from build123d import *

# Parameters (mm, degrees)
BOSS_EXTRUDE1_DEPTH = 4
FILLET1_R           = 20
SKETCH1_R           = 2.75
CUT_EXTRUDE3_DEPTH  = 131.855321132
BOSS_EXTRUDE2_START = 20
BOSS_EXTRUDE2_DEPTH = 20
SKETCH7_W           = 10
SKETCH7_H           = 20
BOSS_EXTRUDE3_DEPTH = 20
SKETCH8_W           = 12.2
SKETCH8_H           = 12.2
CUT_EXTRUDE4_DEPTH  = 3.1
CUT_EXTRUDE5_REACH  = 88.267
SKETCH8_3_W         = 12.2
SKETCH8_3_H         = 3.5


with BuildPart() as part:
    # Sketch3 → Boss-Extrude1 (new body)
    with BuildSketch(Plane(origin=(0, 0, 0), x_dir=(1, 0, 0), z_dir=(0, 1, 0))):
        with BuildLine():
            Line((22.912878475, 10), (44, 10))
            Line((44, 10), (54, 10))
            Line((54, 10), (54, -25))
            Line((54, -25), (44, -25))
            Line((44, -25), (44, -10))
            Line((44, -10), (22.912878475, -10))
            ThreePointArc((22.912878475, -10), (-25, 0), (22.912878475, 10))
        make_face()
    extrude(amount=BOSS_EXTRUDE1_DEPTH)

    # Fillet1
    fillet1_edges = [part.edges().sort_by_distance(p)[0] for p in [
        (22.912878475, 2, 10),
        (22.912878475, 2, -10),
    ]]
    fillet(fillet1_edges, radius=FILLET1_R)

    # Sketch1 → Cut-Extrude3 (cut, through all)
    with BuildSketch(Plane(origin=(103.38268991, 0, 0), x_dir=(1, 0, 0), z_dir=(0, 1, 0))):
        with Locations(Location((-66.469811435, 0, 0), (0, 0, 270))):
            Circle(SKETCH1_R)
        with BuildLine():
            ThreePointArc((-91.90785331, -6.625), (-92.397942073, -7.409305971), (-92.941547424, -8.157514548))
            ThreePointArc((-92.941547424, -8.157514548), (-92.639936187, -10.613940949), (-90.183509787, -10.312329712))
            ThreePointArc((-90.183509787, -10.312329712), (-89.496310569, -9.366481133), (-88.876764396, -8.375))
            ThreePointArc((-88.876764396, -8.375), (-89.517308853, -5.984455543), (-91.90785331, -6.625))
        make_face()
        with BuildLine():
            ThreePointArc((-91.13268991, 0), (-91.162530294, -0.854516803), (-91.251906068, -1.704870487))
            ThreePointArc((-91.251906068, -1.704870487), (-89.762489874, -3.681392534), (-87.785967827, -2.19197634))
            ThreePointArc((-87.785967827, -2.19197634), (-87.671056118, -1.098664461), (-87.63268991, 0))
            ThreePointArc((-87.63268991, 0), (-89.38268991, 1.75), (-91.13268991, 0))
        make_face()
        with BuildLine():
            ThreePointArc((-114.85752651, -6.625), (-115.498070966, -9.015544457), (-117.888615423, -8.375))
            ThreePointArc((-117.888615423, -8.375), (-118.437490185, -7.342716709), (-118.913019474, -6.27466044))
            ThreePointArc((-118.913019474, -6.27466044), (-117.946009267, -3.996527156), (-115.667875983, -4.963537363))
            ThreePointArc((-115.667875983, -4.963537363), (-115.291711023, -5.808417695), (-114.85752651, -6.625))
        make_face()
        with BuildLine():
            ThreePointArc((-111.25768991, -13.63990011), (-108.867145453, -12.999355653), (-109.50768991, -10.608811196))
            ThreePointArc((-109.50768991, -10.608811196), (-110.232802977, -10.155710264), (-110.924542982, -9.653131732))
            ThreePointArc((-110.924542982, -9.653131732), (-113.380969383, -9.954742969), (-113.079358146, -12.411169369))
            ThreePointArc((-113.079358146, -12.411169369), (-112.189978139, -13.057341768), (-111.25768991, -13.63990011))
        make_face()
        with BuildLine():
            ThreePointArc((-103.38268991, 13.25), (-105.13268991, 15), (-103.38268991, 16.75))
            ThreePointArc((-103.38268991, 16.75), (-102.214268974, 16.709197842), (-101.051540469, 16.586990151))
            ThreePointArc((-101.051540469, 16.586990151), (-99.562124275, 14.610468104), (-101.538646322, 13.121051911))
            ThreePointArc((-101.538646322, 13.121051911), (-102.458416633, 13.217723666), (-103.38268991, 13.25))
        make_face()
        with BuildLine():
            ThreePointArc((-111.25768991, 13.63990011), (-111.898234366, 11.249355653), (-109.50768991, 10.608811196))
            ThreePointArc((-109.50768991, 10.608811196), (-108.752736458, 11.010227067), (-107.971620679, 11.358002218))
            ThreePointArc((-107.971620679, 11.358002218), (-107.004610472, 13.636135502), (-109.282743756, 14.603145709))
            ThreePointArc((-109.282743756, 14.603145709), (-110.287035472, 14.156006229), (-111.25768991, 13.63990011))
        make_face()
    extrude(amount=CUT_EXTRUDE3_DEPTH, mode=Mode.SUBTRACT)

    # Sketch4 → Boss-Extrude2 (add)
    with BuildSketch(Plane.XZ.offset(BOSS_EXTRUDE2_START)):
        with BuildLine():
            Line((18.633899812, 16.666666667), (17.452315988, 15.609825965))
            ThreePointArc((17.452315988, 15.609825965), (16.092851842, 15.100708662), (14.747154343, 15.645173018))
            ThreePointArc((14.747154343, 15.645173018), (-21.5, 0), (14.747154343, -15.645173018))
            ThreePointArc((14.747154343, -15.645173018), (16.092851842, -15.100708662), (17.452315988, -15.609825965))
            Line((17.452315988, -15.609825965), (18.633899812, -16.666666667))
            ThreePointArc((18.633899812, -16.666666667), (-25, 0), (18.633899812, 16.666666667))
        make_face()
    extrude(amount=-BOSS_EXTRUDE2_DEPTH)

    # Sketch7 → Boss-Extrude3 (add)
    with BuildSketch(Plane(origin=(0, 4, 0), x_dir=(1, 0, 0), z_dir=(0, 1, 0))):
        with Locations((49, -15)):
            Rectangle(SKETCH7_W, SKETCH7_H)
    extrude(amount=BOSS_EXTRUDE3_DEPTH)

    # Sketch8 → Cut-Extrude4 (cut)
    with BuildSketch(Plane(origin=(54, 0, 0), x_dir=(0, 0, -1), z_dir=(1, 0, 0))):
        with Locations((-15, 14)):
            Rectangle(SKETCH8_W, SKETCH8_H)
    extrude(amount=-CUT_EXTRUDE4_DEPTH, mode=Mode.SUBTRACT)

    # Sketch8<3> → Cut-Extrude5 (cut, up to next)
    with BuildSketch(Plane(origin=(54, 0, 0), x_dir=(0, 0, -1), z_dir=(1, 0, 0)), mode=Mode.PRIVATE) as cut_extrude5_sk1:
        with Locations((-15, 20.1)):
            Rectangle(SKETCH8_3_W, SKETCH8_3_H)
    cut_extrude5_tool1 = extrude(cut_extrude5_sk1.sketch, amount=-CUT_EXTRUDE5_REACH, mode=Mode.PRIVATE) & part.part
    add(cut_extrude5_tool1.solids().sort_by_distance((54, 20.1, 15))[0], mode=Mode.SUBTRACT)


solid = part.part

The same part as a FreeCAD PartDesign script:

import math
import FreeCAD as App
import Part
import Sketcher

V = App.Vector
Q = App.Units.Quantity


def edges_at(feature, points):
    """Names of the edges that pass closest to the given points."""
    edges = feature.Shape.Edges
    near = lambda p: min(range(len(edges)), key=lambda i: edges[i].distToShape(Part.Vertex(*p))[0])
    return sorted({f"Edge{near(p) + 1}" for p in points})

doc = App.newDocument("Part")
body = doc.addObject("PartDesign::Body", "Body")

# Sketch on XZ plane
sketch1 = body.newObject("Sketcher::SketchObject", "Sketch")
sketch1.AttachmentSupport = (doc.getObject("XZ_Plane"), [""])
sketch1.MapMode = "FlatFace"
sketch1.addGeometry(Part.LineSegment(V(54, -10, 0), V(22.912878, -10, 0)), False)
sketch1.addGeometry(Part.ArcOfCircle(Part.Circle(V(0, 0, 0), V(0, 0, 1), 25), math.radians(23.578178), math.radians(336.421822)), False)
sketch1.addGeometry(Part.LineSegment(V(22.912878, 10, 0), V(44, 10, 0)), False)
sketch1.addGeometry(Part.LineSegment(V(44, 10, 0), V(44, 25, 0)), False)
sketch1.addGeometry(Part.LineSegment(V(44, 25, 0), V(54, 25, 0)), False)
sketch1.addGeometry(Part.LineSegment(V(54, 25, 0), V(54, -10, 0)), False)
sketch1.addConstraint(Sketcher.Constraint("Coincident", 0, 2, 1, 2))
sketch1.addConstraint(Sketcher.Constraint("Coincident", 1, 1, 2, 1))
sketch1.addConstraint(Sketcher.Constraint("Coincident", 2, 2, 3, 1))
sketch1.addConstraint(Sketcher.Constraint("Coincident", 3, 2, 4, 1))
sketch1.addConstraint(Sketcher.Constraint("Coincident", 4, 2, 5, 1))
sketch1.addConstraint(Sketcher.Constraint("Coincident", 5, 2, 0, 1))
sketch1.addConstraint(Sketcher.Constraint("Horizontal", 0))
sketch1.addConstraint(Sketcher.Constraint("Horizontal", 2))
sketch1.addConstraint(Sketcher.Constraint("Vertical", 3))
sketch1.addConstraint(Sketcher.Constraint("Horizontal", 4))
sketch1.addConstraint(Sketcher.Constraint("Vertical", 5))
sketch1.addConstraint(Sketcher.Constraint("Coincident", 1, 3, -1, 1))
sketch1.addConstraint(Sketcher.Constraint("Vertical", 0, 2, 1, 1))
sketch1.addConstraint(Sketcher.Constraint("Radius", 1, Q("25 mm")))
sketch1.addConstraint(Sketcher.Constraint("DistanceX", 4, 1, 4, 2, Q("10 mm")))
sketch1.addConstraint(Sketcher.Constraint("DistanceY", 3, 1, 3, 2, Q("15 mm")))
sketch1.addConstraint(Sketcher.Constraint("DistanceY", 5, 2, 5, 1, Q("35 mm")))
sketch1.addConstraint(Sketcher.Constraint("DistanceX", -1, 1, 2, 2, Q("44 mm")))
pad1 = body.newObject("PartDesign::Pad", "Pad")
pad1.Profile = sketch1
pad1.Length = 4
pad1.Reversed = True
doc.recompute()

fillet = body.newObject("PartDesign::Fillet", "Fillet")
fillet.Base = (pad1, edges_at(pad1, [(22.913, 2, 10), (22.913, 2, -10)]))
fillet.Radius = 20

# Sketch on XZ plane
sketch2 = body.newObject("Sketcher::SketchObject", "Sketch001")
sketch2.AttachmentSupport = (doc.getObject("XZ_Plane"), [""])
sketch2.MapMode = "FlatFace"
sketch2.addGeometry(Part.Circle(V(36.912878, 0, 0), V(0, 0, 1), 2.75), False)
sketch2.addGeometry(Part.ArcOfCircle(Part.Circle(V(0, 0, 0), V(0, 0, 1), 13.25), math.radians(30), math.radians(38)), False)
sketch2.addGeometry(Part.ArcOfCircle(Part.Circle(V(11.820161, 9.234922, 0), V(0, 0, 1), 1.75), math.radians(38), math.radians(218)), False)
sketch2.addGeometry(Part.ArcOfCircle(Part.Circle(V(0, 0, 0), V(0, 0, 1), 16.75), math.radians(30), math.radians(38)), False)
sketch2.addGeometry(Part.ArcOfCircle(Part.Circle(V(12.990381, 7.5, 0), V(0, 0, 1), 1.75), math.radians(-150), math.radians(30)), False)
sketch2.addGeometry(Part.ArcOfCircle(Part.Circle(V(0, 0, 0), V(0, 0, 1), 12.25), math.radians(0), math.radians(8)), False)
sketch2.addGeometry(Part.ArcOfCircle(Part.Circle(V(13.863753, 1.948423, 0), V(0, 0, 1), 1.75), math.radians(8), math.radians(188)), False)
sketch2.addGeometry(Part.ArcOfCircle(Part.Circle(V(0, 0, 0), V(0, 0, 1), 15.75), math.radians(0), math.radians(8)), False)
sketch2.addGeometry(Part.ArcOfCircle(Part.Circle(V(14, 0, 0), V(0, 0, 1), 1.75), math.radians(180), math.radians(360)), False)
sketch2.addGeometry(Part.ArcOfCircle(Part.Circle(V(-12.990381, 7.5, 0), V(0, 0, 1), 1.75), math.radians(-30), math.radians(150)), False)
sketch2.addGeometry(Part.ArcOfCircle(Part.Circle(V(0, 0, 0), V(0, 0, 1), 13.25), math.radians(150), math.radians(158)), False)
sketch2.addGeometry(Part.ArcOfCircle(Part.Circle(V(-13.907758, 5.619099, 0), V(0, 0, 1), 1.75), math.radians(158), math.radians(338)), False)
sketch2.addGeometry(Part.ArcOfCircle(Part.Circle(V(0, 0, 0), V(0, 0, 1), 16.75), math.radians(150), math.radians(158)), False)
sketch2.addGeometry(Part.ArcOfCircle(Part.Circle(V(-7, 12.124356, 0), V(0, 0, 1), 1.75), math.radians(-60), math.radians(120)), False)
sketch2.addGeometry(Part.ArcOfCircle(Part.Circle(V(0, 0, 0), V(0, 0, 1), 12.25), math.radians(120), math.radians(128)), False)
sketch2.addGeometry(Part.ArcOfCircle(Part.Circle(V(-8.619261, 11.032151, 0), V(0, 0, 1), 1.75), math.radians(128), math.radians(308)), False)
sketch2.addGeometry(Part.ArcOfCircle(Part.Circle(V(0, 0, 0), V(0, 0, 1), 15.75), math.radians(120), math.radians(128)), False)
sketch2.addGeometry(Part.ArcOfCircle(Part.Circle(V(0, -15, 0), V(0, 0, 1), 1.75), math.radians(90), math.radians(270)), False)
sketch2.addGeometry(Part.ArcOfCircle(Part.Circle(V(0, 0, 0), V(0, 0, 1), 13.25), math.radians(-90), math.radians(-82)), False)
sketch2.addGeometry(Part.ArcOfCircle(Part.Circle(V(2.087597, -14.854021, 0), V(0, 0, 1), 1.75), math.radians(-82), math.radians(98)), False)
sketch2.addGeometry(Part.ArcOfCircle(Part.Circle(V(0, 0, 0), V(0, 0, 1), 16.75), math.radians(-90), math.radians(-82)), False)
sketch2.addGeometry(Part.ArcOfCircle(Part.Circle(V(-7, -12.124356, 0), V(0, 0, 1), 1.75), math.radians(60), math.radians(240)), False)
sketch2.addGeometry(Part.ArcOfCircle(Part.Circle(V(0, 0, 0), V(0, 0, 1), 12.25), math.radians(-120), math.radians(-112)), False)
sketch2.addGeometry(Part.ArcOfCircle(Part.Circle(V(-5.244492, -12.980574, 0), V(0, 0, 1), 1.75), math.radians(-112), math.radians(68)), False)
sketch2.addGeometry(Part.ArcOfCircle(Part.Circle(V(0, 0, 0), V(0, 0, 1), 15.75), math.radians(-120), math.radians(-112)), False)
sketch2.addConstraint(Sketcher.Constraint("Tangent", 1, 2, 2, 2))
sketch2.addConstraint(Sketcher.Constraint("Tangent", 2, 1, 3, 2))
sketch2.addConstraint(Sketcher.Constraint("Tangent", 3, 1, 4, 2))
sketch2.addConstraint(Sketcher.Constraint("Tangent", 4, 1, 1, 1))
sketch2.addConstraint(Sketcher.Constraint("Tangent", 5, 2, 6, 2))
sketch2.addConstraint(Sketcher.Constraint("Tangent", 6, 1, 7, 2))
sketch2.addConstraint(Sketcher.Constraint("Tangent", 7, 1, 8, 2))
sketch2.addConstraint(Sketcher.Constraint("Tangent", 8, 1, 5, 1))
sketch2.addConstraint(Sketcher.Constraint("Tangent", 9, 1, 10, 1))
sketch2.addConstraint(Sketcher.Constraint("Tangent", 10, 2, 11, 2))
sketch2.addConstraint(Sketcher.Constraint("Tangent", 11, 1, 12, 2))
sketch2.addConstraint(Sketcher.Constraint("Tangent", 12, 1, 9, 2))
sketch2.addConstraint(Sketcher.Constraint("Tangent", 13, 1, 14, 1))
sketch2.addConstraint(Sketcher.Constraint("Tangent", 14, 2, 15, 2))
sketch2.addConstraint(Sketcher.Constraint("Tangent", 15, 1, 16, 2))
sketch2.addConstraint(Sketcher.Constraint("Tangent", 16, 1, 13, 2))
sketch2.addConstraint(Sketcher.Constraint("Tangent", 17, 1, 18, 1))
sketch2.addConstraint(Sketcher.Constraint("Tangent", 18, 2, 19, 2))
sketch2.addConstraint(Sketcher.Constraint("Tangent", 19, 1, 20, 2))
sketch2.addConstraint(Sketcher.Constraint("Tangent", 20, 1, 17, 2))
sketch2.addConstraint(Sketcher.Constraint("Tangent", 21, 1, 22, 1))
sketch2.addConstraint(Sketcher.Constraint("Tangent", 22, 2, 23, 2))
sketch2.addConstraint(Sketcher.Constraint("Tangent", 23, 1, 24, 2))
sketch2.addConstraint(Sketcher.Constraint("Tangent", 24, 1, 21, 2))
sketch2.addConstraint(Sketcher.Constraint("Coincident", 1, 3, -1, 1))
sketch2.addConstraint(Sketcher.Constraint("Coincident", 3, 3, -1, 1))
sketch2.addConstraint(Sketcher.Constraint("Coincident", 5, 3, -1, 1))
sketch2.addConstraint(Sketcher.Constraint("Coincident", 7, 3, -1, 1))
sketch2.addConstraint(Sketcher.Constraint("Coincident", 10, 3, -1, 1))
sketch2.addConstraint(Sketcher.Constraint("Coincident", 12, 3, -1, 1))
sketch2.addConstraint(Sketcher.Constraint("Coincident", 14, 3, -1, 1))
sketch2.addConstraint(Sketcher.Constraint("Coincident", 16, 3, -1, 1))
sketch2.addConstraint(Sketcher.Constraint("Coincident", 18, 3, -1, 1))
sketch2.addConstraint(Sketcher.Constraint("Coincident", 20, 3, -1, 1))
sketch2.addConstraint(Sketcher.Constraint("Coincident", 22, 3, -1, 1))
sketch2.addConstraint(Sketcher.Constraint("Coincident", 24, 3, -1, 1))
sketch2.addConstraint(Sketcher.Constraint("Equal", 4, 6))
sketch2.addConstraint(Sketcher.Constraint("Equal", 8, 9))
sketch2.addConstraint(Sketcher.Constraint("Equal", 1, 10))
sketch2.addConstraint(Sketcher.Constraint("Equal", 11, 13))
sketch2.addConstraint(Sketcher.Constraint("Equal", 5, 14))
sketch2.addConstraint(Sketcher.Constraint("Equal", 15, 17))
sketch2.addConstraint(Sketcher.Constraint("Equal", 10, 18))
sketch2.addConstraint(Sketcher.Constraint("Equal", 19, 21))
sketch2.addConstraint(Sketcher.Constraint("Equal", 14, 22))
sketch2.addConstraint(Sketcher.Constraint("PointOnObject", 0, 3, -1))
sketch2.addConstraint(Sketcher.Constraint("PointOnObject", 8, 3, -1))
sketch2.addConstraint(Sketcher.Constraint("PointOnObject", 17, 3, -2))
sketch2.addConstraint(Sketcher.Constraint("Horizontal", 4, 3, 9, 3))
sketch2.addConstraint(Sketcher.Constraint("Vertical", 13, 3, 21, 3))
sketch2.addConstraint(Sketcher.Constraint("Diameter", 0, Q("5.5 mm")))
sketch2.addConstraint(Sketcher.Constraint("Radius", 1, Q("13.25 mm")))
sketch2.addConstraint(Sketcher.Constraint("Radius", 2, Q("1.75 mm")))
sketch2.addConstraint(Sketcher.Constraint("Radius", 5, Q("12.25 mm")))
sketch2.addConstraint(Sketcher.Constraint("DistanceX", 13, 3, -1, 1, Q("7 mm")))
sketch2.addConstraint(Sketcher.Constraint("DistanceY", -1, 1, 4, 3, Q("7.5 mm")))
sketch2.addConstraint(Sketcher.Constraint("DistanceY", -1, 1, 11, 3, Q("5.619099 mm")))
sketch2.addConstraint(Sketcher.Constraint("DistanceY", 6, 3, 2, 3, Q("7.286499 mm")))
sketch2.addConstraint(Sketcher.Constraint("DistanceX", 4, 3, 2, 1, Q("0.208799 mm")))
sketch2.addConstraint(Sketcher.Constraint("DistanceX", -1, 1, 0, 3, Q("36.912878 mm")))
sketch2.addConstraint(Sketcher.Constraint("DistanceX", 15, 3, -1, 1, Q("8.619261 mm")))
sketch2.addConstraint(Sketcher.Constraint("DistanceY", 19, 3, -1, 1, Q("14.854021 mm")))
sketch2.addConstraint(Sketcher.Constraint("DistanceX", 22, 2, -1, 1, Q("4.588931 mm")))
pocket1 = body.newObject("PartDesign::Pocket", "Pocket")
pocket1.Profile = sketch2
pocket1.Type = "ThroughAll"

# Sketch on XZ plane
sketch3 = body.newObject("Sketcher::SketchObject", "Sketch002")
sketch3.AttachmentSupport = (doc.getObject("XZ_Plane"), [""])
sketch3.MapMode = "FlatFace"
sketch3.AttachmentOffset = App.Placement(V(0, 0, 20), App.Rotation())
sketch3.addGeometry(Part.LineSegment(V(17.452316, 15.609826, 0), V(18.6339, 16.666667, 0)), False)
sketch3.addGeometry(Part.ArcOfCircle(Part.Circle(V(0, 0, 0), V(0, 0, 1), 25), math.radians(41.810315), math.radians(318.189685)), False)
sketch3.addGeometry(Part.LineSegment(V(18.6339, -16.666667, 0), V(17.452316, -15.609826, 0)), False)
sketch3.addGeometry(Part.ArcOfCircle(Part.Circle(V(16.118983, -17.100538, 0), V(0, 0, 1), 2), math.radians(48.189685), math.radians(133.307543)), False)
sketch3.addGeometry(Part.ArcOfCircle(Part.Circle(V(0, 0, 0), V(0, 0, 1), 21.5), math.radians(46.692457), math.radians(313.307543)), False)
sketch3.addGeometry(Part.ArcOfCircle(Part.Circle(V(16.118983, 17.100538, 0), V(0, 0, 1), 2), math.radians(-133.307543), math.radians(-48.189685)), False)
sketch3.addConstraint(Sketcher.Constraint("Coincident", 0, 2, 1, 1))
sketch3.addConstraint(Sketcher.Constraint("Coincident", 1, 2, 2, 1))
sketch3.addConstraint(Sketcher.Constraint("Tangent", 2, 2, 3, 1))
sketch3.addConstraint(Sketcher.Constraint("Tangent", 3, 2, 4, 2))
sketch3.addConstraint(Sketcher.Constraint("Tangent", 4, 1, 5, 1))
sketch3.addConstraint(Sketcher.Constraint("Tangent", 5, 2, 0, 1))
sketch3.addConstraint(Sketcher.Constraint("Coincident", 1, 3, -1, 1))
sketch3.addConstraint(Sketcher.Constraint("Coincident", 4, 3, -1, 1))
sketch3.addConstraint(Sketcher.Constraint("Equal", 3, 5))
sketch3.addConstraint(Sketcher.Constraint("Symmetric", 2, 2, 5, 2, -1))
sketch3.addConstraint(Sketcher.Constraint("Radius", 1, Q("25 mm")))
sketch3.addConstraint(Sketcher.Constraint("Radius", 3, Q("2 mm")))
sketch3.addConstraint(Sketcher.Constraint("Radius", 4, Q("21.5 mm")))
sketch3.addConstraint(Sketcher.Constraint("DistanceX", -1, 1, 0, 2, Q("18.6339 mm")))
sketch3.addConstraint(Sketcher.Constraint("Distance", 0, Q("1.585261 mm")))
pad2 = body.newObject("PartDesign::Pad", "Pad001")
pad2.Profile = sketch3
pad2.Length = 20
pad2.Reversed = True

# Sketch on XZ plane
sketch4 = body.newObject("Sketcher::SketchObject", "Sketch003")
sketch4.AttachmentSupport = (doc.getObject("XZ_Plane"), [""])
sketch4.MapMode = "FlatFace"
sketch4.AttachmentOffset = App.Placement(V(0, 0, -4), App.Rotation())
sketch4.addGeometry(Part.LineSegment(V(44, 5, 0), V(44, 25, 0)), False)
sketch4.addGeometry(Part.LineSegment(V(44, 25, 0), V(54, 25, 0)), False)
sketch4.addGeometry(Part.LineSegment(V(54, 25, 0), V(54, 5, 0)), False)
sketch4.addGeometry(Part.LineSegment(V(54, 5, 0), V(44, 5, 0)), False)
sketch4.addConstraint(Sketcher.Constraint("Coincident", 0, 2, 1, 1))
sketch4.addConstraint(Sketcher.Constraint("Coincident", 1, 2, 2, 1))
sketch4.addConstraint(Sketcher.Constraint("Coincident", 2, 2, 3, 1))
sketch4.addConstraint(Sketcher.Constraint("Coincident", 3, 2, 0, 1))
sketch4.addConstraint(Sketcher.Constraint("Vertical", 0))
sketch4.addConstraint(Sketcher.Constraint("Horizontal", 1))
sketch4.addConstraint(Sketcher.Constraint("Vertical", 2))
sketch4.addConstraint(Sketcher.Constraint("Horizontal", 3))
sketch4.addConstraint(Sketcher.Constraint("DistanceX", 1, 1, 1, 2, Q("10 mm")))
sketch4.addConstraint(Sketcher.Constraint("DistanceY", 0, 1, 0, 2, Q("20 mm")))
sketch4.addConstraint(Sketcher.Constraint("DistanceX", -1, 1, 0, 2, Q("44 mm")))
sketch4.addConstraint(Sketcher.Constraint("DistanceY", -1, 1, 0, 2, Q("25 mm")))
pad3 = body.newObject("PartDesign::Pad", "Pad002")
pad3.Profile = sketch4
pad3.Length = 20
pad3.Reversed = True

# Sketch on YZ plane
sketch5 = body.newObject("Sketcher::SketchObject", "Sketch004")
sketch5.AttachmentSupport = (doc.getObject("YZ_Plane"), [""])
sketch5.MapMode = "FlatFace"
sketch5.AttachmentOffset = App.Placement(V(0, 0, 54), App.Rotation())
sketch5.addGeometry(Part.LineSegment(V(20.1, 21.1, 0), V(7.9, 21.1, 0)), False)
sketch5.addGeometry(Part.LineSegment(V(7.9, 21.1, 0), V(7.9, 8.9, 0)), False)
sketch5.addGeometry(Part.LineSegment(V(7.9, 8.9, 0), V(20.1, 8.9, 0)), False)
sketch5.addGeometry(Part.LineSegment(V(20.1, 8.9, 0), V(20.1, 21.1, 0)), False)
sketch5.addConstraint(Sketcher.Constraint("Coincident", 0, 2, 1, 1))
sketch5.addConstraint(Sketcher.Constraint("Coincident", 1, 2, 2, 1))
sketch5.addConstraint(Sketcher.Constraint("Coincident", 2, 2, 3, 1))
sketch5.addConstraint(Sketcher.Constraint("Coincident", 3, 2, 0, 1))
sketch5.addConstraint(Sketcher.Constraint("Horizontal", 0))
sketch5.addConstraint(Sketcher.Constraint("Vertical", 1))
sketch5.addConstraint(Sketcher.Constraint("Horizontal", 2))
sketch5.addConstraint(Sketcher.Constraint("Vertical", 3))
sketch5.addConstraint(Sketcher.Constraint("Equal", 2, 1))
sketch5.addConstraint(Sketcher.Constraint("DistanceX", 0, 2, 0, 1, Q("12.2 mm")))
sketch5.addConstraint(Sketcher.Constraint("DistanceX", -1, 1, 0, 2, Q("7.9 mm")))
sketch5.addConstraint(Sketcher.Constraint("DistanceY", -1, 1, 0, 2, Q("21.1 mm")))
pocket2 = body.newObject("PartDesign::Pocket", "Pocket001")
pocket2.Profile = sketch5
pocket2.Length = 3.1

# Sketch on YZ plane
sketch6 = body.newObject("Sketcher::SketchObject", "Sketch005")
sketch6.AttachmentSupport = (doc.getObject("YZ_Plane"), [""])
sketch6.MapMode = "FlatFace"
sketch6.AttachmentOffset = App.Placement(V(0, 0, 54), App.Rotation())
sketch6.addGeometry(Part.LineSegment(V(21.85, 21.1, 0), V(18.35, 21.1, 0)), False)
sketch6.addGeometry(Part.LineSegment(V(18.35, 21.1, 0), V(18.35, 8.9, 0)), False)
sketch6.addGeometry(Part.LineSegment(V(18.35, 8.9, 0), V(21.85, 8.9, 0)), False)
sketch6.addGeometry(Part.LineSegment(V(21.85, 8.9, 0), V(21.85, 21.1, 0)), False)
sketch6.addConstraint(Sketcher.Constraint("Coincident", 0, 2, 1, 1))
sketch6.addConstraint(Sketcher.Constraint("Coincident", 1, 2, 2, 1))
sketch6.addConstraint(Sketcher.Constraint("Coincident", 2, 2, 3, 1))
sketch6.addConstraint(Sketcher.Constraint("Coincident", 3, 2, 0, 1))
sketch6.addConstraint(Sketcher.Constraint("Horizontal", 0))
sketch6.addConstraint(Sketcher.Constraint("Vertical", 1))
sketch6.addConstraint(Sketcher.Constraint("Horizontal", 2))
sketch6.addConstraint(Sketcher.Constraint("Vertical", 3))
sketch6.addConstraint(Sketcher.Constraint("DistanceX", 0, 2, 0, 1, Q("3.5 mm")))
sketch6.addConstraint(Sketcher.Constraint("DistanceY", 1, 2, 1, 1, Q("12.2 mm")))
sketch6.addConstraint(Sketcher.Constraint("DistanceY", -1, 1, 0, 2, Q("21.1 mm")))
sketch6.addConstraint(Sketcher.Constraint("DistanceX", -1, 1, 0, 2, Q("18.35 mm")))
pocket3 = body.newObject("PartDesign::Pocket", "Pocket002")
pocket3.Profile = sketch6
pocket3.Length = 10

doc.recompute()
